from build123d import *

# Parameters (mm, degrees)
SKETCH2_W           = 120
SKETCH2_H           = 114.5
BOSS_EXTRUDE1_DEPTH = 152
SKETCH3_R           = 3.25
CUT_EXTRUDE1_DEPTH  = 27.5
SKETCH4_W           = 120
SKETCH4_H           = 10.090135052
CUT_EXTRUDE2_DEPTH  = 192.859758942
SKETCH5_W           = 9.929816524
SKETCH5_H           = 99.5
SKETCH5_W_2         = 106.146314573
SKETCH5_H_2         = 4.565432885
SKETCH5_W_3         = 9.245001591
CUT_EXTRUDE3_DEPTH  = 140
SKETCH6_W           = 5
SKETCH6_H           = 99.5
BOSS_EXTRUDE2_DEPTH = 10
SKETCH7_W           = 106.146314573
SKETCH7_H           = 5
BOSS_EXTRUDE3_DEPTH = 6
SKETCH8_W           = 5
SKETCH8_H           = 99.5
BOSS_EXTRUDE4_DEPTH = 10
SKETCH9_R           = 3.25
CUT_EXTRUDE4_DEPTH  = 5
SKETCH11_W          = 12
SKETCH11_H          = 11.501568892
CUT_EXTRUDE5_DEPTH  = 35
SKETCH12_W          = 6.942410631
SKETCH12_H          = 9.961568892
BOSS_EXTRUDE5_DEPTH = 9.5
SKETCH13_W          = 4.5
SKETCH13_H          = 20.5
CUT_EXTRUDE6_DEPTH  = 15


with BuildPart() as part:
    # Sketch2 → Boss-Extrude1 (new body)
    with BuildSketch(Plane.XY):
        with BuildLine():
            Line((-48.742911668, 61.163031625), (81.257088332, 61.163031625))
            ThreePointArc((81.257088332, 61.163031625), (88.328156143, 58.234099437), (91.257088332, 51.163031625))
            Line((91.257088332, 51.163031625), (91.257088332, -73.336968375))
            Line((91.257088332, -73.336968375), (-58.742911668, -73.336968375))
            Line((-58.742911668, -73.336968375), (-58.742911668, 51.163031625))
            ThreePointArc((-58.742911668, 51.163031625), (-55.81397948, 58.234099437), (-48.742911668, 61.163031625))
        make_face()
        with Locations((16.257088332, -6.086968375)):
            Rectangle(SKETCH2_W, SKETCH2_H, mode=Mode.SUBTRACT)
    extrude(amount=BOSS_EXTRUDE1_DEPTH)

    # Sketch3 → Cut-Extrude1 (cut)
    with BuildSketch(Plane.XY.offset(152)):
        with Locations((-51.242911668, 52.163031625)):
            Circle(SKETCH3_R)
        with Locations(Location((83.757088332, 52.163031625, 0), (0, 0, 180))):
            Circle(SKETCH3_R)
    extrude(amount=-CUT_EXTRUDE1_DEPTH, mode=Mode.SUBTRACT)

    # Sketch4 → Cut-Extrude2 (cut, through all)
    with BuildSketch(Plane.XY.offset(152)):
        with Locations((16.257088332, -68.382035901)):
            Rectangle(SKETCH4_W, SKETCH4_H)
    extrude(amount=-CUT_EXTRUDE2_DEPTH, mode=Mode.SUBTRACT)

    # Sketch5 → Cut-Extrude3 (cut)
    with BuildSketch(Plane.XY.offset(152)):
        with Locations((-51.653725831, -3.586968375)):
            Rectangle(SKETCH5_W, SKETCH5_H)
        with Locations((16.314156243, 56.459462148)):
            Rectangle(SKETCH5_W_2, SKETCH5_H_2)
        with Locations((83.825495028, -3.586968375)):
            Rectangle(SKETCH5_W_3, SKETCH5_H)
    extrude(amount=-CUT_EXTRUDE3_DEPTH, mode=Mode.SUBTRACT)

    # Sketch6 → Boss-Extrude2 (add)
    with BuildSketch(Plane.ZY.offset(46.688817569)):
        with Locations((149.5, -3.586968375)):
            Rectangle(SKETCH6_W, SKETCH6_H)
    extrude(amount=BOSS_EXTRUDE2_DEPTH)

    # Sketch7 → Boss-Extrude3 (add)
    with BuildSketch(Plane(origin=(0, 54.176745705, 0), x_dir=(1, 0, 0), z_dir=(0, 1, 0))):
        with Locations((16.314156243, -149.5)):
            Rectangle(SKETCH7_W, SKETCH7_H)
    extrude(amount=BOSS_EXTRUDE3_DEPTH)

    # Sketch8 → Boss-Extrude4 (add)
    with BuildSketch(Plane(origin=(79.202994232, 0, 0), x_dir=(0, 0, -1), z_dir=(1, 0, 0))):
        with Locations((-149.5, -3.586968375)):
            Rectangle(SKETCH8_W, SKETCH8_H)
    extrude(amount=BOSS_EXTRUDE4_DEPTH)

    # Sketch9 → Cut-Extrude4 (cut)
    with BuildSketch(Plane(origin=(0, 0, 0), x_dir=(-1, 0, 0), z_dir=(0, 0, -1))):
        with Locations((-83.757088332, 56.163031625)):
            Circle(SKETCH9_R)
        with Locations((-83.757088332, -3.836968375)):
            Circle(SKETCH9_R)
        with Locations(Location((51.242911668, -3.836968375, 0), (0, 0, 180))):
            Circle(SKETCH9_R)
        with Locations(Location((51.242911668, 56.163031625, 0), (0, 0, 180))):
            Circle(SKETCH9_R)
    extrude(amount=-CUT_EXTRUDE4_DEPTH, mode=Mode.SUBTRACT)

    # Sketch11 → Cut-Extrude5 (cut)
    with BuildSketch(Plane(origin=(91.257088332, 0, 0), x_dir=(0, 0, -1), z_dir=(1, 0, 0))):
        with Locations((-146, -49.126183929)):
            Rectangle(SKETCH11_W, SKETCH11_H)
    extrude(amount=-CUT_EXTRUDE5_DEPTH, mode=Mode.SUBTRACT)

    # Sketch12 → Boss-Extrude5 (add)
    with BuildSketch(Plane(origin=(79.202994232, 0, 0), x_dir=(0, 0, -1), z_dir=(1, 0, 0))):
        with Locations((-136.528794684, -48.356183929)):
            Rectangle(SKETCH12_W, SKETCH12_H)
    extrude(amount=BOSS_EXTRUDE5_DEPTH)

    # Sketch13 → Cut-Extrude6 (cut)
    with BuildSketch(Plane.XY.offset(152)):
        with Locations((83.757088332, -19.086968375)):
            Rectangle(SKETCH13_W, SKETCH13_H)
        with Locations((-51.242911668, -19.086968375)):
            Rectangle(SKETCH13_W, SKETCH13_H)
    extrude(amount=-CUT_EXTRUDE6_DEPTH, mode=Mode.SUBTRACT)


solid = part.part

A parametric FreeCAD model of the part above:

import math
import FreeCAD as App
import Part
import Sketcher


def add_polygon(sketch, points):
    """Adds a closed chain of lines whose ends are joined by coincident constraints."""
    first, n = sketch.GeometryCount, len(points)
    for a, b in zip(points, points[1:] + points[:1]):
        sketch.addGeometry(Part.LineSegment(App.Vector(*a, 0), App.Vector(*b, 0)), False)
    for i in range(n):
        sketch.addConstraint(Sketcher.Constraint("Coincident", first + i, 2, first + (i + 1) % n, 1))

doc = App.newDocument("Part")
body = doc.addObject("PartDesign::Body", "Body")

# Sketch on XY plane
sketch1 = body.newObject("Sketcher::SketchObject", "Sketch")
sketch1.AttachmentSupport = (doc.getObject("XY_Plane"), [""])
sketch1.MapMode = "FlatFace"
sketch1.addGeometry(Part.LineSegment(App.Vector(81, 61, 0), App.Vector(-49, 61, 0)), False)  # 0
sketch1.addGeometry(Part.ArcOfCircle(Part.Circle(App.Vector(-49, 51, 0), App.Vector(0, 0, 1), 10), math.radians(90), math.radians(180)), False)  # 1
sketch1.addGeometry(Part.LineSegment(App.Vector(-59, 51, 0), App.Vector(-59, -73, 0)), False)  # 2
sketch1.addGeometry(Part.LineSegment(App.Vector(-59, -73, 0), App.Vector(91, -73, 0)), False)  # 3
sketch1.addGeometry(Part.LineSegment(App.Vector(91, -73, 0), App.Vector(91, 51, 0)), False)  # 4
sketch1.addGeometry(Part.ArcOfCircle(Part.Circle(App.Vector(81, 51, 0), App.Vector(0, 0, 1), 10), math.radians(0), math.radians(90)), False)  # 5
add_polygon(sketch1, [(-44, -63), (-44, 51), (76, 51), (76, -63)])  # lines 6-9
sketch1.addConstraint(Sketcher.Constraint("Tangent", 0, 2, 1, 1))
sketch1.addConstraint(Sketcher.Constraint("Tangent", 1, 2, 2, 1))
sketch1.addConstraint(Sketcher.Constraint("Coincident", 2, 2, 3, 1))
sketch1.addConstraint(Sketcher.Constraint("Coincident", 3, 2, 4, 1))
sketch1.addConstraint(Sketcher.Constraint("Tangent", 4, 2, 5, 1))
sketch1.addConstraint(Sketcher.Constraint("Tangent", 5, 2, 0, 1))
sketch1.addConstraint(Sketcher.Constraint("Horizontal", 0))
sketch1.addConstraint(Sketcher.Constraint("Vertical", 2))
sketch1.addConstraint(Sketcher.Constraint("Horizontal", 3))
sketch1.addConstraint(Sketcher.Constraint("Vertical", 4))
sketch1.addConstraint(Sketcher.Constraint("Vertical", 6))
sketch1.addConstraint(Sketcher.Constraint("Horizontal", 7))
sketch1.addConstraint(Sketcher.Constraint("Vertical", 8))
sketch1.addConstraint(Sketcher.Constraint("Horizontal", 9))
sketch1.addConstraint(Sketcher.Constraint("Equal", 1, 5))
sketch1.addConstraint(Sketcher.Constraint("Horizontal", 4, 2, 6, 2))
sketch1.addConstraint(Sketcher.Constraint("Radius", 1, 10.0))
sketch1.addConstraint(Sketcher.Constraint("DistanceX", 0, 2, 0, 1, 130.0))
sketch1.addConstraint(Sketcher.Constraint("DistanceX", 7, 1, 7, 2, 120.0))
sketch1.addConstraint(Sketcher.Constraint("DistanceY", 2, 2, 2, 1, 124.5))
sketch1.addConstraint(Sketcher.Constraint("DistanceY", 6, 1, 6, 2, 114.5))
sketch1.addConstraint(Sketcher.Constraint("DistanceX", 1, 3, 6, 2, 5.0))
sketch1.addConstraint(Sketcher.Constraint("DistanceX", 1, 3, -1, 1, 48.742912))
sketch1.addConstraint(Sketcher.Constraint("DistanceY", -1, 1, 1, 3, 51.163032))
pad1 = body.newObject("PartDesign::Pad", "Pad")
pad1.Profile = sketch1
pad1.Length = 152

# Sketch on XY plane
sketch2 = body.newObject("Sketcher::SketchObject", "Sketch001")
sketch2.AttachmentSupport = (doc.getObject("XY_Plane"), [""])
sketch2.MapMode = "FlatFace"
sketch2.AttachmentOffset = App.Placement(App.Vector(0, 0, 152), App.Rotation())
sketch2.addGeometry(Part.Circle(App.Vector(-51.2, 52.2, 0), App.Vector(0, 0, 1), 3.2), False)
sketch2.addGeometry(Part.Circle(App.Vector(83.8, 52.2, 0), App.Vector(0, 0, 1), 3.2), False)
sketch2.addConstraint(Sketcher.Constraint("Equal", 0, 1))
sketch2.addConstraint(Sketcher.Constraint("Horizontal", 0, 3, 1, 3))
sketch2.addConstraint(Sketcher.Constraint("Diameter", 0, 6.5))
sketch2.addConstraint(Sketcher.Constraint("DistanceX", 0, 3, 1, 3, 135.0))
sketch2.addConstraint(Sketcher.Constraint("DistanceX", 0, 3, -1, 1, 51.242912))
sketch2.addConstraint(Sketcher.Constraint("DistanceY", -1, 1, 0, 3, 52.163032))
pocket1 = body.newObject("PartDesign::Pocket", "Pocket")
pocket1.Profile = sketch2
pocket1.Length = 27.5

# Sketch on XY plane
sketch3 = body.newObject("Sketcher::SketchObject", "Sketch002")
sketch3.AttachmentSupport = (doc.getObject("XY_Plane"), [""])
sketch3.MapMode = "FlatFace"
sketch3.AttachmentOffset = App.Placement(App.Vector(0, 0, 152), App.Rotation())
add_polygon(sketch3, [(-44, -63), (-44, -73), (76, -73), (76, -63)])  # lines 0-3
sketch3.addConstraint(Sketcher.Constraint("Vertical", 0))
sketch3.addConstraint(Sketcher.Constraint("Horizontal", 1))
sketch3.addConstraint(Sketcher.Constraint("Vertical", 2))
sketch3.addConstraint(Sketcher.Constraint("Horizontal", 3))
sketch3.addConstraint(Sketcher.Constraint("DistanceX", 1, 1, 1, 2, 120.0))
sketch3.addConstraint(Sketcher.Constraint("DistanceY", 0, 2, 0, 1, 10.090135))
sketch3.addConstraint(Sketcher.Constraint("DistanceX", 0, 2, -1, 1, 43.742912))
sketch3.addConstraint(Sketcher.Constraint("DistanceY", 2, 2, -1, 1, 63.336968))
pocket2 = body.newObject("PartDesign::Pocket", "Pocket001")
pocket2.Profile = sketch3
pocket2.Type = "ThroughAll"

# Sketch on XY plane
sketch4 = body.newObject("Sketcher::SketchObject", "Sketch003")
sketch4.AttachmentSupport = (doc.getObject("XY_Plane"), [""])
sketch4.MapMode = "FlatFace"
sketch4.AttachmentOffset = App.Placement(App.Vector(0, 0, 152), App.Rotation())
add_polygon(sketch4, [(-56.6, 46.2), (-56.6, -53.3), (-46.7, -53.3), (-46.7, 46.2)])  # lines 0-3
add_polygon(sketch4, [(-36.8, 58.7), (-36.8, 54.2), (69.4, 54.2), (69.4, 58.7)])  # lines 4-7
add_polygon(sketch4, [(79.2, 46.2), (79.2, -53.3), (88.4, -53.3), (88.4, 46.2)])  # lines 8-11
sketch4.addConstraint(Sketcher.Constraint("Vertical", 0))
sketch4.addConstraint(Sketcher.Constraint("Horizontal", 1))
sketch4.addConstraint(Sketcher.Constraint("Vertical", 2))
sketch4.addConstraint(Sketcher.Constraint("Horizontal", 3))
sketch4.addConstraint(Sketcher.Constraint("Vertical", 4))
sketch4.addConstraint(Sketcher.Constraint("Horizontal", 5))
sketch4.addConstraint(Sketcher.Constraint("Vertical", 6))
sketch4.addConstraint(Sketcher.Constraint("Horizontal", 7))
sketch4.addConstraint(Sketcher.Constraint("Vertical", 8))
sketch4.addConstraint(Sketcher.Constraint("Horizontal", 9))
sketch4.addConstraint(Sketcher.Constraint("Vertical", 10))
sketch4.addConstraint(Sketcher.Constraint("Horizontal", 11))
sketch4.addConstraint(Sketcher.Constraint("Horizontal", 1, 2, 8, 2))
sketch4.addConstraint(Sketcher.Constraint("Horizontal", 3, 2, 10, 2))
sketch4.addConstraint(Sketcher.Constraint("DistanceY", 0, 2, 0, 1, 99.5))
sketch4.addConstraint(Sketcher.Constraint("DistanceX", 9, 1, 9, 2, 9.245002))
sketch4.addConstraint(Sketcher.Constraint("DistanceX", 4, 2, -1, 1, 36.759001))
sketch4.addConstraint(Sketcher.Constraint("DistanceX", 1, 1, 1, 2, 9.929817))
sketch4.addConstraint(Sketcher.Constraint("DistanceX", 5, 1, 5, 2, 106.146315))
sketch4.addConstraint(Sketcher.Constraint("DistanceY", 4, 2, 4, 1, 4.565433))
sketch4.addConstraint(Sketcher.Constraint("DistanceY", 0, 2, -1, 1, 53.336968))
sketch4.addConstraint(Sketcher.Constraint("DistanceY", -1, 1, 6, 2, 58.742179))
sketch4.addConstraint(Sketcher.Constraint("DistanceX", 2, 2, 5, 2, 116.076131))
sketch4.addConstraint(Sketcher.Constraint("DistanceX", 5, 2, 8, 2, 9.815681))
pocket3 = body.newObject("PartDesign::Pocket", "Pocket002")
pocket3.Profile = sketch4
pocket3.Length = 140

# Sketch on YZ plane
sketch5 = body.newObject("Sketcher::SketchObject", "Sketch004")
sketch5.AttachmentSupport = (doc.getObject("YZ_Plane"), [""])
sketch5.MapMode = "FlatFace"
sketch5.AttachmentOffset = App.Placement(App.Vector(0, 0, -46.688818), App.Rotation())
add_polygon(sketch5, [(46, 147), (-53, 147), (-53, 152), (46, 152)])  # lines 0-3
sketch5.addConstraint(Sketcher.Constraint("Horizontal", 0))
sketch5.addConstraint(Sketcher.Constraint("Vertical", 1))
sketch5.addConstraint(Sketcher.Constraint("Horizontal", 2))
sketch5.addConstraint(Sketcher.Constraint("Vertical", 3))
sketch5.addConstraint(Sketcher.Constraint("DistanceY", 1, 1, 1, 2, 5.0))
sketch5.addConstraint(Sketcher.Constraint("DistanceX", 0, 2, 0, 1, 99.5))
sketch5.addConstraint(Sketcher.Constraint("DistanceY", -1, 1, 0, 2, 147.0))
sketch5.addConstraint(Sketcher.Constraint("DistanceX", 0, 2, -1, 1, 53.336968))
pad2 = body.newObject("PartDesign::Pad", "Pad001")
pad2.Profile = sketch5
pad2.Length = 10
pad2.Reversed = True

# Sketch on XZ plane
sketch6 = body.newObject("Sketcher::SketchObject", "Sketch005")
sketch6.AttachmentSupport = (doc.getObject("XZ_Plane"), [""])
sketch6.MapMode = "FlatFace"
sketch6.AttachmentOffset = App.Placement(App.Vector(0, 0, -54.176746), App.Rotation())
add_polygon(sketch6, [(-37, 147), (-37, 152), (69, 152), (69, 147)])  # lines 0-3
sketch6.addConstraint(Sketcher.Constraint("Vertical", 0))
sketch6.addConstraint(Sketcher.Constraint("Horizontal", 1))
sketch6.addConstraint(Sketcher.Constraint("Vertical", 2))
sketch6.addConstraint(Sketcher.Constraint("Horizontal", 3))
sketch6.addConstraint(Sketcher.Constraint("DistanceY", 0, 1, 0, 2, 5.0))
sketch6.addConstraint(Sketcher.Constraint("DistanceY", -1, 1, 0, 2, 152.0))
sketch6.addConstraint(Sketcher.Constraint("DistanceX", 0, 2, -1, 1, 36.759001))
sketch6.addConstraint(Sketcher.Constraint("DistanceX", 1, 1, 1, 2, 106.146315))
pad3 = body.newObject("PartDesign::Pad", "Pad002")
pad3.Profile = sketch6
pad3.Length = 6
pad3.Reversed = True

# Sketch on YZ plane
sketch7 = body.newObject("Sketcher::SketchObject", "Sketch006")
sketch7.AttachmentSupport = (doc.getObject("YZ_Plane"), [""])
sketch7.MapMode = "FlatFace"
sketch7.AttachmentOffset = App.Placement(App.Vector(0, 0, 79.202994), App.Rotation())
add_polygon(sketch7, [(46, 152), (-53, 152), (-53, 147), (46, 147)])  # lines 0-3
sketch7.addConstraint(Sketcher.Constraint("Horizontal", 0))
sketch7.addConstraint(Sketcher.Constraint("Vertical", 1))
sketch7.addConstraint(Sketcher.Constraint("Horizontal", 2))
sketch7.addConstraint(Sketcher.Constraint("Vertical", 3))
sketch7.addConstraint(Sketcher.Constraint("DistanceY", 1, 2, 1, 1, 5.0))
sketch7.addConstraint(Sketcher.Constraint("DistanceX", 0, 2, 0, 1, 99.5))
sketch7.addConstraint(Sketcher.Constraint("DistanceY", -1, 1, 0, 2, 152.0))
sketch7.addConstraint(Sketcher.Constraint("DistanceX", 0, 2, -1, 1, 53.336968))
pad4 = body.newObject("PartDesign::Pad", "Pad003")
pad4.Profile = sketch7
pad4.Length = 10

# Sketch on XY plane
sketch8 = body.newObject("Sketcher::SketchObject", "Sketch007")
sketch8.AttachmentSupport = (doc.getObject("XY_Plane"), [""])
sketch8.MapMode = "FlatFace"
sketch8.addGeometry(Part.Circle(App.Vector(83.8, 56.2, 0), App.Vector(0, 0, 1), 3.2), False)
sketch8.addGeometry(Part.Circle(App.Vector(83.8, -3.8, 0), App.Vector(0, 0, 1), 3.2), False)
sketch8.addGeometry(Part.Circle(App.Vector(-51.2, -3.8, 0), App.Vector(0, 0, 1), 3.2), False)
sketch8.addGeometry(Part.Circle(App.Vector(-51.2, 56.2, 0), App.Vector(0, 0, 1), 3.2), False)
sketch8.addConstraint(Sketcher.Constraint("Equal", 0, 1))
sketch8.addConstraint(Sketcher.Constraint("Equal", 1, 2))
sketch8.addConstraint(Sketcher.Constraint("Equal", 2, 3))
sketch8.addConstraint(Sketcher.Constraint("Horizontal", 1, 3, 2, 3))
sketch8.addConstraint(Sketcher.Constraint("Horizontal", 0, 3, 3, 3))
sketch8.addConstraint(Sketcher.Constraint("Vertical", 0, 3, 1, 3))
sketch8.addConstraint(Sketcher.Constraint("Vertical", 2, 3, 3, 3))
sketch8.addConstraint(Sketcher.Constraint("Diameter", 0, 6.5))
sketch8.addConstraint(Sketcher.Constraint("DistanceY", 1, 3, 0, 3, 60.0))
sketch8.addConstraint(Sketcher.Constraint("DistanceX", 2, 3, 1, 3, 135.0))
sketch8.addConstraint(Sketcher.Constraint("DistanceX", -1, 1, 0, 3, 83.757088))
sketch8.addConstraint(Sketcher.Constraint("DistanceY", -1, 1, 0, 3, 56.163032))
pocket4 = body.newObject("PartDesign::Pocket", "Pocket003")
pocket4.Profile = sketch8
pocket4.Length = 5
pocket4.Reversed = True

# Sketch on YZ plane
sketch9 = body.newObject("Sketcher::SketchObject", "Sketch008")
sketch9.AttachmentSupport = (doc.getObject("YZ_Plane"), [""])
sketch9.MapMode = "FlatFace"
sketch9.AttachmentOffset = App.Placement(App.Vector(0, 0, 91.257088), App.Rotation())
add_polygon(sketch9, [(-43, 152), (-55, 152), (-55, 140), (-43, 140)])  # lines 0-3
sketch9.addConstraint(Sketcher.Constraint("Horizontal", 0))
sketch9.addConstraint(Sketcher.Constraint("Vertical", 1))
sketch9.addConstraint(Sketcher.Constraint("Horizontal", 2))
sketch9.addConstraint(Sketcher.Constraint("Vertical", 3))
sketch9.addConstraint(Sketcher.Constraint("DistanceY", 1, 2, 1, 1, 12.0))
sketch9.addConstraint(Sketcher.Constraint("DistanceY", -1, 1, 0, 2, 152.0))
sketch9.addConstraint(Sketcher.Constraint("DistanceX", 0, 2, 0, 1, 11.501569))
sketch9.addConstraint(Sketcher.Constraint("DistanceX", 2, 2, -1, 1, 43.375399))
pocket5 = body.newObject("PartDesign::Pocket", "Pocket004")
pocket5.Profile = sketch9
pocket5.Length = 35

# Sketch on YZ plane
sketch10 = body.newObject("Sketcher::SketchObject", "Sketch009")
sketch10.AttachmentSupport = (doc.getObject("YZ_Plane"), [""])
sketch10.MapMode = "FlatFace"
sketch10.AttachmentOffset = App.Placement(App.Vector(0, 0, 79.202994), App.Rotation())
add_polygon(sketch10, [(-43, 140), (-53, 140), (-53, 133), (-43, 133)])  # lines 0-3
sketch10.addConstraint(Sketcher.Constraint("Horizontal", 0))
sketch10.addConstraint(Sketcher.Constraint("Vertical", 1))
sketch10.addConstraint(Sketcher.Constraint("Horizontal", 2))
sketch10.addConstraint(Sketcher.Constraint("Vertical", 3))
sketch10.addConstraint(Sketcher.Constraint("DistanceY", -1, 1, 0, 2, 140.0))
sketch10.addConstraint(Sketcher.Constraint("DistanceX", 0, 2, 0, 1, 9.961569))
sketch10.addConstraint(Sketcher.Constraint("DistanceY", 1, 2, 1, 1, 6.942411))
sketch10.addConstraint(Sketcher.Constraint("DistanceX", 2, 2, -1, 1, 43.375399))
pad5 = body.newObject("PartDesign::Pad", "Pad004")
pad5.Profile = sketch10
pad5.Length = 9.5

# Sketch on XY plane
sketch11 = body.newObject("Sketcher::SketchObject", "Sketch010")
sketch11.AttachmentSupport = (doc.getObject("XY_Plane"), [""])
sketch11.MapMode = "FlatFace"
sketch11.AttachmentOffset = App.Placement(App.Vector(0, 0, 152), App.Rotation())
add_polygon(sketch11, [(81.5, -8.8), (81.5, -29.3), (86, -29.3), (86, -8.8)])  # lines 0-3
add_polygon(sketch11, [(-53.5, -8.8), (-53.5, -29.3), (-49, -29.3), (-49, -8.8)])  # lines 4-7
sketch11.addConstraint(Sketcher.Constraint("Vertical", 0))
sketch11.addConstraint(Sketcher.Constraint("Horizontal", 1))
sketch11.addConstraint(Sketcher.Constraint("Vertical", 2))
sketch11.addConstraint(Sketcher.Constraint("Horizontal", 3))
sketch11.addConstraint(Sketcher.Constraint("Vertical", 4))
sketch11.addConstraint(Sketcher.Constraint("Horizontal", 5))
sketch11.addConstraint(Sketcher.Constraint("Vertical", 6))
sketch11.addConstraint(Sketcher.Constraint("Horizontal", 7))
sketch11.addConstraint(Sketcher.Constraint("Horizontal", 1, 2, 4, 2))
sketch11.addConstraint(Sketcher.Constraint("Horizontal", 3, 2, 6, 2))
sketch11.addConstraint(Sketcher.Constraint("Equal", 3, 5))
sketch11.addConstraint(Sketcher.Constraint("DistanceX", 1, 1, 1, 2, 4.5))
sketch11.addConstraint(Sketcher.Constraint("DistanceY", 0, 2, 0, 1, 20.5))
sketch11.addConstraint(Sketcher.Constraint("DistanceX", 4, 2, 0, 2, 135.0))
sketch11.addConstraint(Sketcher.Constraint("DistanceX", -1, 1, 0, 2, 81.507088))
sketch11.addConstraint(Sketcher.Constraint("DistanceY", 0, 2, -1, 1, 29.336968))
pocket6 = body.newObject("PartDesign::Pocket", "Pocket005")
pocket6.Profile = sketch11
pocket6.Length = 15

doc.recompute()
